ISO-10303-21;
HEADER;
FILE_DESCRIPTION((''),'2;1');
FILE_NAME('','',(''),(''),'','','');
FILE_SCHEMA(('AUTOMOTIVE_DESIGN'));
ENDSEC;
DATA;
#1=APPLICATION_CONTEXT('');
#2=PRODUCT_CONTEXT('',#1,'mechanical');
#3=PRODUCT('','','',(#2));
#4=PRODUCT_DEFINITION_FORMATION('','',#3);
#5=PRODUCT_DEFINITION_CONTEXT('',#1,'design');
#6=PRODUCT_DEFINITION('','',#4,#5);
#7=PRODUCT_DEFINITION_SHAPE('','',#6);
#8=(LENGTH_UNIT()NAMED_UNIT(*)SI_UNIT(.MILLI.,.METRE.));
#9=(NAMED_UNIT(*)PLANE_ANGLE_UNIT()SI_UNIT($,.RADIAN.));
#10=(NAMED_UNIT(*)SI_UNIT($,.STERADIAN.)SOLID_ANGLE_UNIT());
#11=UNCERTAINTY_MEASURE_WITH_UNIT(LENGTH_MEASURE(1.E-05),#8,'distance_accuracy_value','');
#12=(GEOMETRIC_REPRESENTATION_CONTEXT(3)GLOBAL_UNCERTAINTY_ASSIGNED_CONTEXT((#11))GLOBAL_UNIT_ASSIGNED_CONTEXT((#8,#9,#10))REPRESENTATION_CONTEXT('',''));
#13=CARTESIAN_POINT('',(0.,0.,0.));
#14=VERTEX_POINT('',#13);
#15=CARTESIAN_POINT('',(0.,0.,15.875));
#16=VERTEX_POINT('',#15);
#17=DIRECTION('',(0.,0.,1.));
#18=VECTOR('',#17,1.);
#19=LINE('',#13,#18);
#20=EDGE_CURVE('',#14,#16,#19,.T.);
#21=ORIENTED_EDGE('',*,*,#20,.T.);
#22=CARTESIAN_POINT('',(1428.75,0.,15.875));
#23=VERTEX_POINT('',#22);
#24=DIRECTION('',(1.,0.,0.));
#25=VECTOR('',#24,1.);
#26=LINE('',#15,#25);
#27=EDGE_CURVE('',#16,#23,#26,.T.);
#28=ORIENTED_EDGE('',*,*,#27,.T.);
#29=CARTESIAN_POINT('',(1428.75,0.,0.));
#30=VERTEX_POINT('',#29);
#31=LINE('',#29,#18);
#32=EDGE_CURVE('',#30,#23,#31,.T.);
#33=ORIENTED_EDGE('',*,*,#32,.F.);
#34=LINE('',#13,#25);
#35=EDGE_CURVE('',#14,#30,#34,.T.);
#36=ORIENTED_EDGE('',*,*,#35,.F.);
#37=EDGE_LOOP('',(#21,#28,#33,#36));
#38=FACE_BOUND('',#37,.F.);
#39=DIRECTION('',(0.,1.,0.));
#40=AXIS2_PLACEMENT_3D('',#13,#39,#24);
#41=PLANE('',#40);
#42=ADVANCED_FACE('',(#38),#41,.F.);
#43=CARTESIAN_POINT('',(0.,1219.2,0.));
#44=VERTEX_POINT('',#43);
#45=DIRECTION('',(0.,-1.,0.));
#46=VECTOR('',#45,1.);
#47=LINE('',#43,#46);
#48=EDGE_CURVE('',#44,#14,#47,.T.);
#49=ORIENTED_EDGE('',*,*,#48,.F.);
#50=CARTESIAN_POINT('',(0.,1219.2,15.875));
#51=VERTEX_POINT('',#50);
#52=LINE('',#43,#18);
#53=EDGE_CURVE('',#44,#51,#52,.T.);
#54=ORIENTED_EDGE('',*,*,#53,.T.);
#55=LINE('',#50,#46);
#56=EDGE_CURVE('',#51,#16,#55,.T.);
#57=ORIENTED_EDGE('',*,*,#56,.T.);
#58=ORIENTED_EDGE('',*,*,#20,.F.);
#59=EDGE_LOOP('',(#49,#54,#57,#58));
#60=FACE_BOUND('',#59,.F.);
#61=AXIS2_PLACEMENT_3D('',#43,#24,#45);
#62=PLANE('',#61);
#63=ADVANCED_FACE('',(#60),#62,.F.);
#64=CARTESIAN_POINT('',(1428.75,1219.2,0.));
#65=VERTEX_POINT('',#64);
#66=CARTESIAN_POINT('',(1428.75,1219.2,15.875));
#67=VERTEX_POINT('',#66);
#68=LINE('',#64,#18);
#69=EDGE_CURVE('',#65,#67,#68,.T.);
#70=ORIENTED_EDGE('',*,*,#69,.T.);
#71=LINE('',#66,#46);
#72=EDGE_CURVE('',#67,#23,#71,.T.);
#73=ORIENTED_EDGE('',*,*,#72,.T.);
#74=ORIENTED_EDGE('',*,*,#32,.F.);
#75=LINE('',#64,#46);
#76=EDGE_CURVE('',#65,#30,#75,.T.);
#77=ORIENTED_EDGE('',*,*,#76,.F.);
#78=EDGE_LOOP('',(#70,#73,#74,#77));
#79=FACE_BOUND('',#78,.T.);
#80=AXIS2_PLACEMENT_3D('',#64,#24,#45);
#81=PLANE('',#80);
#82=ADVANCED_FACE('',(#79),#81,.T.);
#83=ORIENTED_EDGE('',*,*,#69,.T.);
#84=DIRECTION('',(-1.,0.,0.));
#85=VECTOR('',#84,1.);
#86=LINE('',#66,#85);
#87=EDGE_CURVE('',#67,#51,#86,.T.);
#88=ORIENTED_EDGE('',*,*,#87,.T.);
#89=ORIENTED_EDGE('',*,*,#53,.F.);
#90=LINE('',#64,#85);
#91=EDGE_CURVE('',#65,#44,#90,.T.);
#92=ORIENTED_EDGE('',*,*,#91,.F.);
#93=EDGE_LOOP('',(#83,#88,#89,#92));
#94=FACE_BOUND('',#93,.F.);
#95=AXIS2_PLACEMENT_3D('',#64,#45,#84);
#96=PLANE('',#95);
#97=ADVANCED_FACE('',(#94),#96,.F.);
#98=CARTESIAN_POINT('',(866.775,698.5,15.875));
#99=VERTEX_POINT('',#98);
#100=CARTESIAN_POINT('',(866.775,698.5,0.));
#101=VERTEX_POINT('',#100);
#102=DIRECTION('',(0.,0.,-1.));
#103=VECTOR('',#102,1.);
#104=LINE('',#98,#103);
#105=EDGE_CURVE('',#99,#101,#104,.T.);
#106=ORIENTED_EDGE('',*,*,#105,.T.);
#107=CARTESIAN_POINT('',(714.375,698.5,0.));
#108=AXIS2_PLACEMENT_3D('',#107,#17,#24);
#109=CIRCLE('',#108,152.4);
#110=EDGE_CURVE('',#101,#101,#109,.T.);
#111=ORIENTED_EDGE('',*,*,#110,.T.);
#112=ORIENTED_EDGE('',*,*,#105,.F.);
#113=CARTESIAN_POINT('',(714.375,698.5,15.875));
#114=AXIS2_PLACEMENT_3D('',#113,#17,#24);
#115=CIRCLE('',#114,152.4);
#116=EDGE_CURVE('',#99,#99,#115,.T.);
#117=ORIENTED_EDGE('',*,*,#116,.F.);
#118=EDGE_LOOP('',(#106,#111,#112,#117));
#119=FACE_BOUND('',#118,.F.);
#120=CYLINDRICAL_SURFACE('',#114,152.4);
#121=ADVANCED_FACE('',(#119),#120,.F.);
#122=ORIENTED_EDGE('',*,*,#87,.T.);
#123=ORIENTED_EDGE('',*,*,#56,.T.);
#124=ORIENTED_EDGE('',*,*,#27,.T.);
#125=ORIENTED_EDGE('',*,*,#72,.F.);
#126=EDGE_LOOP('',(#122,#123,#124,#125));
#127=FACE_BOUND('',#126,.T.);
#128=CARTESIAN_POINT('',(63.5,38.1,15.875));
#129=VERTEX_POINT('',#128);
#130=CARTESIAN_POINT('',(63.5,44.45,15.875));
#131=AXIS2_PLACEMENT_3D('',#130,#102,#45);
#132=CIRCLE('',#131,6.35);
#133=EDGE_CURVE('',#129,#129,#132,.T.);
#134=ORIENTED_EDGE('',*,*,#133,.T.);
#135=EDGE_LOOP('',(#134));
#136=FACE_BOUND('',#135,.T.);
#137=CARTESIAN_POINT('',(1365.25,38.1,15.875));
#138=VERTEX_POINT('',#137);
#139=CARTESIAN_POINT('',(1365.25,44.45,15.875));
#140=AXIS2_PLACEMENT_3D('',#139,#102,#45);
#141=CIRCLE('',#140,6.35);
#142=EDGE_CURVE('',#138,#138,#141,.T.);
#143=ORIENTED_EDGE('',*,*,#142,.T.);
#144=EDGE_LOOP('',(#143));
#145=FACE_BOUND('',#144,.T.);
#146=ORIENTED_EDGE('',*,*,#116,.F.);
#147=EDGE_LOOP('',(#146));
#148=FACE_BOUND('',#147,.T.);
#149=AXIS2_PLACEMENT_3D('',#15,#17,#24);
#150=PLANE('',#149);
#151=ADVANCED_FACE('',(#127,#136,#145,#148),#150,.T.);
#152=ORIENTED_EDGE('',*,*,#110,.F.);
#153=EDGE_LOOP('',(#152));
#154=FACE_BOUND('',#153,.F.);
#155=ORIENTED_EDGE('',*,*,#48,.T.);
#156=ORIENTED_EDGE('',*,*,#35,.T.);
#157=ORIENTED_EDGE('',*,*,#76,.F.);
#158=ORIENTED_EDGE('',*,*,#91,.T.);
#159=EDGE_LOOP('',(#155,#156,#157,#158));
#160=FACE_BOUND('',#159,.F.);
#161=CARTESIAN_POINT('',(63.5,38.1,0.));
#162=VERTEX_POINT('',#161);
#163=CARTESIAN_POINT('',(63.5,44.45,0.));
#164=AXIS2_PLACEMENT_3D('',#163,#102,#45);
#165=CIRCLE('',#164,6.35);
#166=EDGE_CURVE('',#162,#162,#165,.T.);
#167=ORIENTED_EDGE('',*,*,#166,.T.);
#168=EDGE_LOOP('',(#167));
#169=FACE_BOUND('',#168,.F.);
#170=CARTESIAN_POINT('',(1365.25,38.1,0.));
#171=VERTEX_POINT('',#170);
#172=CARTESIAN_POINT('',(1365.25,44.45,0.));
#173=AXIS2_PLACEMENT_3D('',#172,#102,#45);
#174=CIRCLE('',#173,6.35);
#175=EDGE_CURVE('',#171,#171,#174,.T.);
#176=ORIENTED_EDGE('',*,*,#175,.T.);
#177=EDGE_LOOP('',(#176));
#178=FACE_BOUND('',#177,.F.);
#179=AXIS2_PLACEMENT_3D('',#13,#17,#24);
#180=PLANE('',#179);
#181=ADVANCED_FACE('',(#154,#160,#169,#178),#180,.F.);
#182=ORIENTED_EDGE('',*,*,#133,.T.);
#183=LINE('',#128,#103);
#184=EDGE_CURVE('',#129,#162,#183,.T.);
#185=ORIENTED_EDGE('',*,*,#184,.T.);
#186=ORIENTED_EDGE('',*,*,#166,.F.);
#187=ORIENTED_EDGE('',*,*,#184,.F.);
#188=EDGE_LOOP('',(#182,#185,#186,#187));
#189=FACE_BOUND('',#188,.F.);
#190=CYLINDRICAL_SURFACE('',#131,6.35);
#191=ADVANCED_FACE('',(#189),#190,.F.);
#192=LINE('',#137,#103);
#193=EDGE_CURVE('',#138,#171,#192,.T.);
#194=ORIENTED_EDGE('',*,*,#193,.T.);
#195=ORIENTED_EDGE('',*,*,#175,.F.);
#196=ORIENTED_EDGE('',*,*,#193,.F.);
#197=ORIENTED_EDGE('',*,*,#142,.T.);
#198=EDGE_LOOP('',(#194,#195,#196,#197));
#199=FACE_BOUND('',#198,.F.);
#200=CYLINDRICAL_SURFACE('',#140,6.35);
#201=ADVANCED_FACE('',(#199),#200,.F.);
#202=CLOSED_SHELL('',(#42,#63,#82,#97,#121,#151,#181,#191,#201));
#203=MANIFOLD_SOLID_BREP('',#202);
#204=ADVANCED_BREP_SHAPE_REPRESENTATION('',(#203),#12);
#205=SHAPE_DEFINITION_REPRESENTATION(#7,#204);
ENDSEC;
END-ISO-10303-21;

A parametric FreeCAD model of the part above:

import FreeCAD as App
import Part
import Sketcher

V = App.Vector
Q = App.Units.Quantity


def add_polygon(sketch, points):
    """Adds a closed chain of lines whose ends are joined by coincident constraints."""
    first, n = sketch.GeometryCount, len(points)
    for a, b in zip(points, points[1:] + points[:1]):
        sketch.addGeometry(Part.LineSegment(App.Vector(*a, 0), App.Vector(*b, 0)), False)
    for i in range(n):
        sketch.addConstraint(Sketcher.Constraint("Coincident", first + i, 2, first + (i + 1) % n, 1))

doc = App.newDocument("Part")
body = doc.addObject("PartDesign::Body", "Body")

sketch1 = body.newObject("Sketcher::SketchObject", "Sketch")
sketch1.AttachmentSupport = (doc.getObject("XY_Plane"), [""])
sketch1.MapMode = "FlatFace"
add_polygon(sketch1, [(0, 1219), (0, 0), (1429, 0), (1429, 1219)])
sketch1.addConstraint([
    Sketcher.Constraint("Vertical", 0),
    Sketcher.Constraint("Horizontal", 1),
    Sketcher.Constraint("Vertical", 2),
    Sketcher.Constraint("Horizontal", 3),
    Sketcher.Constraint("Coincident", 0, 2, -1, 1),
    Sketcher.Constraint("DistanceY", 0, 2, 0, 1, Q("48 in")),
    Sketcher.Constraint("DistanceX", 1, 1, 1, 2, Q("56.25 in")),
])
pad1 = body.newObject("PartDesign::Pad", "Pad")
pad1.Profile = sketch1
pad1.Length = Q("0.625 in")

sketch2 = body.newObject("Sketcher::SketchObject", "Sketch001")
sketch2.AttachmentSupport = (doc.getObject("XY_Plane"), [""])
sketch2.MapMode = "FlatFace"
sketch2.AttachmentOffset = App.Placement(V(0, 0, 0.625 * 25.4), App.Rotation())
sketch2.addGeometry(Part.Circle(V(714, 698, 0), V(0, 0, 1), 152), False)
sketch2.addConstraint([
    Sketcher.Constraint("Diameter", 0, Q("12 in")),
    Sketcher.Constraint("DistanceY", -1, 1, 0, 3, Q("27.5 in")),
    Sketcher.Constraint("DistanceX", -1, 1, 0, 3, Q("28.125 in")),
])
pocket1 = body.newObject("PartDesign::Pocket", "Pocket")
pocket1.Profile = sketch2
pocket1.Length = Q("0.625 in")

sketch3 = body.newObject("Sketcher::SketchObject", "Sketch002")
sketch3.AttachmentSupport = (doc.getObject("XY_Plane"), [""])
sketch3.MapMode = "FlatFace"
sketch3.AttachmentOffset = App.Placement(V(0, 0, 0.625 * 25.4), App.Rotation())
sketch3.addGeometry([
    Part.Circle(V(1365, 44, 0), V(0, 0, 1), 6),
    Part.Circle(V(64, 44, 0), V(0, 0, 1), 6),
], False)
sketch3.addConstraint([
    Sketcher.Constraint("Equal", 0, 1),
    Sketcher.Constraint("Horizontal", 0, 3, 1, 3),
    Sketcher.Constraint("Diameter", 0, Q("0.5 in")),
    Sketcher.Constraint("DistanceX", -1, 1, 1, 3, Q("2.5 in")),
    Sketcher.Constraint("DistanceX", -1, 1, 0, 3, Q("53.75 in")),
    Sketcher.Constraint("DistanceY", -1, 1, 0, 3, Q("1.75 in")),
])
doc.recompute()
hole = body.newObject("PartDesign::Hole", "Hole")
hole.Profile = sketch3
hole.ThreadType = "None"
hole.Diameter = Q("0.5 in")
hole.DepthType = "ThroughAll"

doc.recompute()
